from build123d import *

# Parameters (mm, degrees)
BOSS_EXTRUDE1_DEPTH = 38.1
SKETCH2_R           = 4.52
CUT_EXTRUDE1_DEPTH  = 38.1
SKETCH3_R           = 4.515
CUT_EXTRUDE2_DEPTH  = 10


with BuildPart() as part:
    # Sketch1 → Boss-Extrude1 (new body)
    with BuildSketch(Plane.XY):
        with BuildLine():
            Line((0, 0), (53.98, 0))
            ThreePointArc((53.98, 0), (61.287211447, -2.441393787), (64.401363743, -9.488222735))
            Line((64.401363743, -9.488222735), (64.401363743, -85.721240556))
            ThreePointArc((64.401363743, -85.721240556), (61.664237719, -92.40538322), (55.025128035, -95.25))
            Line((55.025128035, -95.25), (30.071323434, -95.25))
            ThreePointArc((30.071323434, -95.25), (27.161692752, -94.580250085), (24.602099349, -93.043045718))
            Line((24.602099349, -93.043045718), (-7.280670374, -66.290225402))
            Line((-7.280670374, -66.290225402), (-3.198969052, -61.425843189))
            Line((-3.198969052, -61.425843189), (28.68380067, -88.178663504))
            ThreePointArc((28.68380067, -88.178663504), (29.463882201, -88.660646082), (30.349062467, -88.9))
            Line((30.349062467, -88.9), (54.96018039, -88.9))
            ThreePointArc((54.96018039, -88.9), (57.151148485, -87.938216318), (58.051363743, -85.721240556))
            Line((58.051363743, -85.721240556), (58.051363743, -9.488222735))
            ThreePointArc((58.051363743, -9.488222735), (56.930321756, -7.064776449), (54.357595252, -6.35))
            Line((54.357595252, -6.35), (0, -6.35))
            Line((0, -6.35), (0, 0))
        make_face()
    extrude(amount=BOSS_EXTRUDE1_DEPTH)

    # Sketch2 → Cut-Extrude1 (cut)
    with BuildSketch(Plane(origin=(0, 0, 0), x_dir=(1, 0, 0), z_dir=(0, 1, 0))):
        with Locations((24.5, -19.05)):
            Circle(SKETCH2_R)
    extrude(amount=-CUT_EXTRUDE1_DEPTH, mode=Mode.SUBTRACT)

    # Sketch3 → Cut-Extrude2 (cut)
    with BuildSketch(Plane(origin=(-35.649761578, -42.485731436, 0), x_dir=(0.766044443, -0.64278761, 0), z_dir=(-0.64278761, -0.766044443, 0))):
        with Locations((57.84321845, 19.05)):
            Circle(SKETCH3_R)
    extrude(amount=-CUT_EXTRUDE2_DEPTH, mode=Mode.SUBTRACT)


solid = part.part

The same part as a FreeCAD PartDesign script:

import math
import FreeCAD as App
import Part
import Sketcher
Q = App.Units.Quantity

doc = App.newDocument("Part")
params = doc.addObject("Spreadsheet::Sheet", "Params")
for row, (alias, value) in enumerate([
    ("sketch1_height", "0.25 in"),
    ("sketch1_length", "0.25 in"),
    ("pad1_length", "1.5 in"),
    ("pocket1_length", "1.5 in"),
    ("pocket2_length", "10 mm"),
], start=1):
    params.set(f"A{row}", alias)
    params.set(f"B{row}", "=" + value)
    params.setAlias(f"B{row}", alias)

body = doc.addObject("PartDesign::Body", "Body")

# Sketch on XY plane
sketch1 = body.newObject("Sketcher::SketchObject", "Sketch")
sketch1.AttachmentSupport = (doc.getObject("XY_Plane"), [""])
sketch1.MapMode = "FlatFace"
sketch1.addGeometry(Part.LineSegment(App.Vector(54, 0, 0), App.Vector(0, 0, 0)), False)
sketch1.addGeometry(Part.LineSegment(App.Vector(0, 0, 0), App.Vector(0, -6.3, 0)), False)
sketch1.addGeometry(Part.LineSegment(App.Vector(0, -6.3, 0), App.Vector(54.4, -6.3, 0)), False)
sketch1.addGeometry(Part.ArcOfCircle(Part.Circle(App.Vector(54.9, -9.5, 0), App.Vector(0, 0, 1), 3.2), math.radians(0), math.radians(99)), False)
sketch1.addGeometry(Part.LineSegment(App.Vector(58.1, -9.5, 0), App.Vector(58.1, -85.7, 0)), False)
sketch1.addGeometry(Part.ArcOfCircle(Part.Circle(App.Vector(54.9, -85.7, 0), App.Vector(0, 0, 1), 3.2), math.radians(-88), math.radians(0)), False)
sketch1.addGeometry(Part.LineSegment(App.Vector(55, -88.9, 0), App.Vector(30.3, -88.9, 0)), False)
sketch1.addGeometry(Part.ArcOfCircle(Part.Circle(App.Vector(30.7, -85.7, 0), App.Vector(0, 0, 1), 3.2), math.radians(-130), math.radians(-97)), False)
sketch1.addGeometry(Part.LineSegment(App.Vector(28.7, -88.2, 0), App.Vector(-3.2, -61.4, 0)), False)
sketch1.addGeometry(Part.LineSegment(App.Vector(-3.2, -61.4, 0), App.Vector(-7.3, -66.3, 0)), False)
sketch1.addGeometry(Part.LineSegment(App.Vector(-7.3, -66.3, 0), App.Vector(24.6, -93, 0)), False)
sketch1.addGeometry(Part.ArcOfCircle(Part.Circle(App.Vector(30.7, -85.7, 0), App.Vector(0, 0, 1), 9.5), math.radians(-130), math.radians(-94)), False)
sketch1.addGeometry(Part.LineSegment(App.Vector(30.1, -95.2, 0), App.Vector(55, -95.2, 0)), False)
sketch1.addGeometry(Part.ArcOfCircle(Part.Circle(App.Vector(54.9, -85.7, 0), App.Vector(0, 0, 1), 9.5), math.radians(-89), math.radians(0)), False)
sketch1.addGeometry(Part.LineSegment(App.Vector(64.4, -85.7, 0), App.Vector(64.4, -9.5, 0)), False)
sketch1.addGeometry(Part.ArcOfCircle(Part.Circle(App.Vector(54.9, -9.5, 0), App.Vector(0, 0, 1), 9.5), math.radians(0), math.radians(95)), False)
sketch1.addConstraint(Sketcher.Constraint("Coincident", 0, 2, 1, 1))
sketch1.addConstraint(Sketcher.Constraint("Coincident", 1, 2, 2, 1))
sketch1.addConstraint(Sketcher.Constraint("Coincident", 2, 2, 3, 2))
sketch1.addConstraint(Sketcher.Constraint("Tangent", 3, 1, 4, 1))
sketch1.addConstraint(Sketcher.Constraint("Tangent", 4, 2, 5, 2))
sketch1.addConstraint(Sketcher.Constraint("Coincident", 5, 1, 6, 1))
sketch1.addConstraint(Sketcher.Constraint("Coincident", 6, 2, 7, 2))
sketch1.addConstraint(Sketcher.Constraint("Tangent", 7, 1, 8, 1))
sketch1.addConstraint(Sketcher.Constraint("Coincident", 8, 2, 9, 1))
sketch1.addConstraint(Sketcher.Constraint("Coincident", 9, 2, 10, 1))
sketch1.addConstraint(Sketcher.Constraint("Tangent", 10, 2, 11, 1))
sketch1.addConstraint(Sketcher.Constraint("Coincident", 11, 2, 12, 1))
sketch1.addConstraint(Sketcher.Constraint("Coincident", 12, 2, 13, 1))
sketch1.addConstraint(Sketcher.Constraint("Tangent", 13, 2, 14, 1))
sketch1.addConstraint(Sketcher.Constraint("Tangent", 14, 2, 15, 1))
sketch1.addConstraint(Sketcher.Constraint("Coincident", 15, 2, 0, 1))
sketch1.addConstraint(Sketcher.Constraint("Horizontal", 0))
sketch1.addConstraint(Sketcher.Constraint("Vertical", 1))
sketch1.addConstraint(Sketcher.Constraint("Horizontal", 2))
sketch1.addConstraint(Sketcher.Constraint("Vertical", 4))
sketch1.addConstraint(Sketcher.Constraint("Horizontal", 6))
sketch1.addConstraint(Sketcher.Constraint("Horizontal", 12))
sketch1.addConstraint(Sketcher.Constraint("Vertical", 14))
sketch1.addConstraint(Sketcher.Constraint("Coincident", 0, 2, -1, 1))
sketch1.addConstraint(Sketcher.Constraint("Coincident", 11, 3, 7, 3))
sketch1.addConstraint(Sketcher.Constraint("Coincident", 13, 3, 5, 3))
sketch1.addConstraint(Sketcher.Constraint("Coincident", 15, 3, 3, 3))
sketch1.addConstraint(Sketcher.Constraint("Equal", 3, 5))
sketch1.addConstraint(Sketcher.Constraint("Equal", 5, 7))
sketch1.addConstraint(Sketcher.Constraint("Equal", 11, 13))
sketch1.addConstraint(Sketcher.Constraint("Perpendicular", 8, 9))
sketch1.addConstraint(Sketcher.Constraint("Perpendicular", 9, 10))
sketch1.addConstraint(Sketcher.Constraint("Angle", 8, Q("140 deg")))
sketch1.addConstraint(Sketcher.Constraint("DistanceY", 1, 2, 1, 1, Q("0.25 in")))
sketch1.addConstraint(Sketcher.Constraint("DistanceY", 5, 1, -1, 1, Q("3.5 in")))
sketch1.addConstraint(Sketcher.Constraint("Distance", 9, Q("0.25 in")))
sketch1.addConstraint(Sketcher.Constraint("DistanceY", 11, 2, -1, 1, Q("3.75 in")))
sketch1.addConstraint(Sketcher.Constraint("Radius", 3, 3.18))
sketch1.addConstraint(Sketcher.Constraint("DistanceY", 4, 2, 4, 1, Q("3.0012999 in")))
sketch1.addConstraint(Sketcher.Constraint("DistanceX", 0, 2, 0, 1, 53.98))
sketch1.addConstraint(Sketcher.Constraint("DistanceX", 5, 1, 4, 2, Q("0.1217001 in")))
sketch1.addConstraint(Sketcher.Constraint("DistanceX", 10, 2, 5, 1, Q("1.1952 in")))
sketch1.addConstraint(Sketcher.Constraint("Distance", 8, 41.62))
sketch1.addConstraint(Sketcher.Constraint("DistanceY", 7, 3, 5, 3, 0.021402))
sketch1.setExpression("Constraints[33]", "Params.sketch1_height")
sketch1.setExpression("Constraints[35]", "Params.sketch1_length")
pad1 = body.newObject("PartDesign::Pad", "Pad")
pad1.Profile = sketch1
pad1.setExpression("Length", "Params.pad1_length")

# Sketch on XZ plane
sketch2 = body.newObject("Sketcher::SketchObject", "Sketch001")
sketch2.AttachmentSupport = (doc.getObject("XZ_Plane"), [""])
sketch2.MapMode = "FlatFace"
sketch2.addGeometry(Part.Circle(App.Vector(24.5, 19.1, 0), App.Vector(0, 0, 1), 4.5), False)
sketch2.addConstraint(Sketcher.Constraint("Diameter", 0, 9.04))
sketch2.addConstraint(Sketcher.Constraint("DistanceY", -1, 1, 0, 3, Q("0.75 in")))
sketch2.addConstraint(Sketcher.Constraint("DistanceX", -1, 1, 0, 3, 24.5))
pocket1 = body.newObject("PartDesign::Pocket", "Pocket")
pocket1.Profile = sketch2
pocket1.setExpression("Length", "Params.pocket1_length")
pocket1.Reversed = True

# Sketch on an angled plane
sketch3 = body.newObject("Sketcher::SketchObject", "Sketch002")
sketch3.Placement = App.Placement(App.Vector(-35.649762, -42.485731, 0), App.Rotation(App.Vector(0.766044443, -0.64278761, 0), App.Vector(0, 0, 1), App.Vector(-0.64278761, -0.766044443, 0), "ZXY"))
sketch3.addGeometry(Part.Circle(App.Vector(57.8, 19.1, 0), App.Vector(0, 0, 1), 4.5), False)
sketch3.addConstraint(Sketcher.Constraint("Diameter", 0, 9.03))
sketch3.addConstraint(Sketcher.Constraint("DistanceY", -1, 1, 0, 3, Q("0.75 in")))
sketch3.addConstraint(Sketcher.Constraint("DistanceX", -1, 1, 0, 3, 57.843218))
pocket2 = body.newObject("PartDesign::Pocket", "Pocket001")
pocket2.Profile = sketch3
pocket2.setExpression("Length", "Params.pocket2_length")

doc.recompute()
